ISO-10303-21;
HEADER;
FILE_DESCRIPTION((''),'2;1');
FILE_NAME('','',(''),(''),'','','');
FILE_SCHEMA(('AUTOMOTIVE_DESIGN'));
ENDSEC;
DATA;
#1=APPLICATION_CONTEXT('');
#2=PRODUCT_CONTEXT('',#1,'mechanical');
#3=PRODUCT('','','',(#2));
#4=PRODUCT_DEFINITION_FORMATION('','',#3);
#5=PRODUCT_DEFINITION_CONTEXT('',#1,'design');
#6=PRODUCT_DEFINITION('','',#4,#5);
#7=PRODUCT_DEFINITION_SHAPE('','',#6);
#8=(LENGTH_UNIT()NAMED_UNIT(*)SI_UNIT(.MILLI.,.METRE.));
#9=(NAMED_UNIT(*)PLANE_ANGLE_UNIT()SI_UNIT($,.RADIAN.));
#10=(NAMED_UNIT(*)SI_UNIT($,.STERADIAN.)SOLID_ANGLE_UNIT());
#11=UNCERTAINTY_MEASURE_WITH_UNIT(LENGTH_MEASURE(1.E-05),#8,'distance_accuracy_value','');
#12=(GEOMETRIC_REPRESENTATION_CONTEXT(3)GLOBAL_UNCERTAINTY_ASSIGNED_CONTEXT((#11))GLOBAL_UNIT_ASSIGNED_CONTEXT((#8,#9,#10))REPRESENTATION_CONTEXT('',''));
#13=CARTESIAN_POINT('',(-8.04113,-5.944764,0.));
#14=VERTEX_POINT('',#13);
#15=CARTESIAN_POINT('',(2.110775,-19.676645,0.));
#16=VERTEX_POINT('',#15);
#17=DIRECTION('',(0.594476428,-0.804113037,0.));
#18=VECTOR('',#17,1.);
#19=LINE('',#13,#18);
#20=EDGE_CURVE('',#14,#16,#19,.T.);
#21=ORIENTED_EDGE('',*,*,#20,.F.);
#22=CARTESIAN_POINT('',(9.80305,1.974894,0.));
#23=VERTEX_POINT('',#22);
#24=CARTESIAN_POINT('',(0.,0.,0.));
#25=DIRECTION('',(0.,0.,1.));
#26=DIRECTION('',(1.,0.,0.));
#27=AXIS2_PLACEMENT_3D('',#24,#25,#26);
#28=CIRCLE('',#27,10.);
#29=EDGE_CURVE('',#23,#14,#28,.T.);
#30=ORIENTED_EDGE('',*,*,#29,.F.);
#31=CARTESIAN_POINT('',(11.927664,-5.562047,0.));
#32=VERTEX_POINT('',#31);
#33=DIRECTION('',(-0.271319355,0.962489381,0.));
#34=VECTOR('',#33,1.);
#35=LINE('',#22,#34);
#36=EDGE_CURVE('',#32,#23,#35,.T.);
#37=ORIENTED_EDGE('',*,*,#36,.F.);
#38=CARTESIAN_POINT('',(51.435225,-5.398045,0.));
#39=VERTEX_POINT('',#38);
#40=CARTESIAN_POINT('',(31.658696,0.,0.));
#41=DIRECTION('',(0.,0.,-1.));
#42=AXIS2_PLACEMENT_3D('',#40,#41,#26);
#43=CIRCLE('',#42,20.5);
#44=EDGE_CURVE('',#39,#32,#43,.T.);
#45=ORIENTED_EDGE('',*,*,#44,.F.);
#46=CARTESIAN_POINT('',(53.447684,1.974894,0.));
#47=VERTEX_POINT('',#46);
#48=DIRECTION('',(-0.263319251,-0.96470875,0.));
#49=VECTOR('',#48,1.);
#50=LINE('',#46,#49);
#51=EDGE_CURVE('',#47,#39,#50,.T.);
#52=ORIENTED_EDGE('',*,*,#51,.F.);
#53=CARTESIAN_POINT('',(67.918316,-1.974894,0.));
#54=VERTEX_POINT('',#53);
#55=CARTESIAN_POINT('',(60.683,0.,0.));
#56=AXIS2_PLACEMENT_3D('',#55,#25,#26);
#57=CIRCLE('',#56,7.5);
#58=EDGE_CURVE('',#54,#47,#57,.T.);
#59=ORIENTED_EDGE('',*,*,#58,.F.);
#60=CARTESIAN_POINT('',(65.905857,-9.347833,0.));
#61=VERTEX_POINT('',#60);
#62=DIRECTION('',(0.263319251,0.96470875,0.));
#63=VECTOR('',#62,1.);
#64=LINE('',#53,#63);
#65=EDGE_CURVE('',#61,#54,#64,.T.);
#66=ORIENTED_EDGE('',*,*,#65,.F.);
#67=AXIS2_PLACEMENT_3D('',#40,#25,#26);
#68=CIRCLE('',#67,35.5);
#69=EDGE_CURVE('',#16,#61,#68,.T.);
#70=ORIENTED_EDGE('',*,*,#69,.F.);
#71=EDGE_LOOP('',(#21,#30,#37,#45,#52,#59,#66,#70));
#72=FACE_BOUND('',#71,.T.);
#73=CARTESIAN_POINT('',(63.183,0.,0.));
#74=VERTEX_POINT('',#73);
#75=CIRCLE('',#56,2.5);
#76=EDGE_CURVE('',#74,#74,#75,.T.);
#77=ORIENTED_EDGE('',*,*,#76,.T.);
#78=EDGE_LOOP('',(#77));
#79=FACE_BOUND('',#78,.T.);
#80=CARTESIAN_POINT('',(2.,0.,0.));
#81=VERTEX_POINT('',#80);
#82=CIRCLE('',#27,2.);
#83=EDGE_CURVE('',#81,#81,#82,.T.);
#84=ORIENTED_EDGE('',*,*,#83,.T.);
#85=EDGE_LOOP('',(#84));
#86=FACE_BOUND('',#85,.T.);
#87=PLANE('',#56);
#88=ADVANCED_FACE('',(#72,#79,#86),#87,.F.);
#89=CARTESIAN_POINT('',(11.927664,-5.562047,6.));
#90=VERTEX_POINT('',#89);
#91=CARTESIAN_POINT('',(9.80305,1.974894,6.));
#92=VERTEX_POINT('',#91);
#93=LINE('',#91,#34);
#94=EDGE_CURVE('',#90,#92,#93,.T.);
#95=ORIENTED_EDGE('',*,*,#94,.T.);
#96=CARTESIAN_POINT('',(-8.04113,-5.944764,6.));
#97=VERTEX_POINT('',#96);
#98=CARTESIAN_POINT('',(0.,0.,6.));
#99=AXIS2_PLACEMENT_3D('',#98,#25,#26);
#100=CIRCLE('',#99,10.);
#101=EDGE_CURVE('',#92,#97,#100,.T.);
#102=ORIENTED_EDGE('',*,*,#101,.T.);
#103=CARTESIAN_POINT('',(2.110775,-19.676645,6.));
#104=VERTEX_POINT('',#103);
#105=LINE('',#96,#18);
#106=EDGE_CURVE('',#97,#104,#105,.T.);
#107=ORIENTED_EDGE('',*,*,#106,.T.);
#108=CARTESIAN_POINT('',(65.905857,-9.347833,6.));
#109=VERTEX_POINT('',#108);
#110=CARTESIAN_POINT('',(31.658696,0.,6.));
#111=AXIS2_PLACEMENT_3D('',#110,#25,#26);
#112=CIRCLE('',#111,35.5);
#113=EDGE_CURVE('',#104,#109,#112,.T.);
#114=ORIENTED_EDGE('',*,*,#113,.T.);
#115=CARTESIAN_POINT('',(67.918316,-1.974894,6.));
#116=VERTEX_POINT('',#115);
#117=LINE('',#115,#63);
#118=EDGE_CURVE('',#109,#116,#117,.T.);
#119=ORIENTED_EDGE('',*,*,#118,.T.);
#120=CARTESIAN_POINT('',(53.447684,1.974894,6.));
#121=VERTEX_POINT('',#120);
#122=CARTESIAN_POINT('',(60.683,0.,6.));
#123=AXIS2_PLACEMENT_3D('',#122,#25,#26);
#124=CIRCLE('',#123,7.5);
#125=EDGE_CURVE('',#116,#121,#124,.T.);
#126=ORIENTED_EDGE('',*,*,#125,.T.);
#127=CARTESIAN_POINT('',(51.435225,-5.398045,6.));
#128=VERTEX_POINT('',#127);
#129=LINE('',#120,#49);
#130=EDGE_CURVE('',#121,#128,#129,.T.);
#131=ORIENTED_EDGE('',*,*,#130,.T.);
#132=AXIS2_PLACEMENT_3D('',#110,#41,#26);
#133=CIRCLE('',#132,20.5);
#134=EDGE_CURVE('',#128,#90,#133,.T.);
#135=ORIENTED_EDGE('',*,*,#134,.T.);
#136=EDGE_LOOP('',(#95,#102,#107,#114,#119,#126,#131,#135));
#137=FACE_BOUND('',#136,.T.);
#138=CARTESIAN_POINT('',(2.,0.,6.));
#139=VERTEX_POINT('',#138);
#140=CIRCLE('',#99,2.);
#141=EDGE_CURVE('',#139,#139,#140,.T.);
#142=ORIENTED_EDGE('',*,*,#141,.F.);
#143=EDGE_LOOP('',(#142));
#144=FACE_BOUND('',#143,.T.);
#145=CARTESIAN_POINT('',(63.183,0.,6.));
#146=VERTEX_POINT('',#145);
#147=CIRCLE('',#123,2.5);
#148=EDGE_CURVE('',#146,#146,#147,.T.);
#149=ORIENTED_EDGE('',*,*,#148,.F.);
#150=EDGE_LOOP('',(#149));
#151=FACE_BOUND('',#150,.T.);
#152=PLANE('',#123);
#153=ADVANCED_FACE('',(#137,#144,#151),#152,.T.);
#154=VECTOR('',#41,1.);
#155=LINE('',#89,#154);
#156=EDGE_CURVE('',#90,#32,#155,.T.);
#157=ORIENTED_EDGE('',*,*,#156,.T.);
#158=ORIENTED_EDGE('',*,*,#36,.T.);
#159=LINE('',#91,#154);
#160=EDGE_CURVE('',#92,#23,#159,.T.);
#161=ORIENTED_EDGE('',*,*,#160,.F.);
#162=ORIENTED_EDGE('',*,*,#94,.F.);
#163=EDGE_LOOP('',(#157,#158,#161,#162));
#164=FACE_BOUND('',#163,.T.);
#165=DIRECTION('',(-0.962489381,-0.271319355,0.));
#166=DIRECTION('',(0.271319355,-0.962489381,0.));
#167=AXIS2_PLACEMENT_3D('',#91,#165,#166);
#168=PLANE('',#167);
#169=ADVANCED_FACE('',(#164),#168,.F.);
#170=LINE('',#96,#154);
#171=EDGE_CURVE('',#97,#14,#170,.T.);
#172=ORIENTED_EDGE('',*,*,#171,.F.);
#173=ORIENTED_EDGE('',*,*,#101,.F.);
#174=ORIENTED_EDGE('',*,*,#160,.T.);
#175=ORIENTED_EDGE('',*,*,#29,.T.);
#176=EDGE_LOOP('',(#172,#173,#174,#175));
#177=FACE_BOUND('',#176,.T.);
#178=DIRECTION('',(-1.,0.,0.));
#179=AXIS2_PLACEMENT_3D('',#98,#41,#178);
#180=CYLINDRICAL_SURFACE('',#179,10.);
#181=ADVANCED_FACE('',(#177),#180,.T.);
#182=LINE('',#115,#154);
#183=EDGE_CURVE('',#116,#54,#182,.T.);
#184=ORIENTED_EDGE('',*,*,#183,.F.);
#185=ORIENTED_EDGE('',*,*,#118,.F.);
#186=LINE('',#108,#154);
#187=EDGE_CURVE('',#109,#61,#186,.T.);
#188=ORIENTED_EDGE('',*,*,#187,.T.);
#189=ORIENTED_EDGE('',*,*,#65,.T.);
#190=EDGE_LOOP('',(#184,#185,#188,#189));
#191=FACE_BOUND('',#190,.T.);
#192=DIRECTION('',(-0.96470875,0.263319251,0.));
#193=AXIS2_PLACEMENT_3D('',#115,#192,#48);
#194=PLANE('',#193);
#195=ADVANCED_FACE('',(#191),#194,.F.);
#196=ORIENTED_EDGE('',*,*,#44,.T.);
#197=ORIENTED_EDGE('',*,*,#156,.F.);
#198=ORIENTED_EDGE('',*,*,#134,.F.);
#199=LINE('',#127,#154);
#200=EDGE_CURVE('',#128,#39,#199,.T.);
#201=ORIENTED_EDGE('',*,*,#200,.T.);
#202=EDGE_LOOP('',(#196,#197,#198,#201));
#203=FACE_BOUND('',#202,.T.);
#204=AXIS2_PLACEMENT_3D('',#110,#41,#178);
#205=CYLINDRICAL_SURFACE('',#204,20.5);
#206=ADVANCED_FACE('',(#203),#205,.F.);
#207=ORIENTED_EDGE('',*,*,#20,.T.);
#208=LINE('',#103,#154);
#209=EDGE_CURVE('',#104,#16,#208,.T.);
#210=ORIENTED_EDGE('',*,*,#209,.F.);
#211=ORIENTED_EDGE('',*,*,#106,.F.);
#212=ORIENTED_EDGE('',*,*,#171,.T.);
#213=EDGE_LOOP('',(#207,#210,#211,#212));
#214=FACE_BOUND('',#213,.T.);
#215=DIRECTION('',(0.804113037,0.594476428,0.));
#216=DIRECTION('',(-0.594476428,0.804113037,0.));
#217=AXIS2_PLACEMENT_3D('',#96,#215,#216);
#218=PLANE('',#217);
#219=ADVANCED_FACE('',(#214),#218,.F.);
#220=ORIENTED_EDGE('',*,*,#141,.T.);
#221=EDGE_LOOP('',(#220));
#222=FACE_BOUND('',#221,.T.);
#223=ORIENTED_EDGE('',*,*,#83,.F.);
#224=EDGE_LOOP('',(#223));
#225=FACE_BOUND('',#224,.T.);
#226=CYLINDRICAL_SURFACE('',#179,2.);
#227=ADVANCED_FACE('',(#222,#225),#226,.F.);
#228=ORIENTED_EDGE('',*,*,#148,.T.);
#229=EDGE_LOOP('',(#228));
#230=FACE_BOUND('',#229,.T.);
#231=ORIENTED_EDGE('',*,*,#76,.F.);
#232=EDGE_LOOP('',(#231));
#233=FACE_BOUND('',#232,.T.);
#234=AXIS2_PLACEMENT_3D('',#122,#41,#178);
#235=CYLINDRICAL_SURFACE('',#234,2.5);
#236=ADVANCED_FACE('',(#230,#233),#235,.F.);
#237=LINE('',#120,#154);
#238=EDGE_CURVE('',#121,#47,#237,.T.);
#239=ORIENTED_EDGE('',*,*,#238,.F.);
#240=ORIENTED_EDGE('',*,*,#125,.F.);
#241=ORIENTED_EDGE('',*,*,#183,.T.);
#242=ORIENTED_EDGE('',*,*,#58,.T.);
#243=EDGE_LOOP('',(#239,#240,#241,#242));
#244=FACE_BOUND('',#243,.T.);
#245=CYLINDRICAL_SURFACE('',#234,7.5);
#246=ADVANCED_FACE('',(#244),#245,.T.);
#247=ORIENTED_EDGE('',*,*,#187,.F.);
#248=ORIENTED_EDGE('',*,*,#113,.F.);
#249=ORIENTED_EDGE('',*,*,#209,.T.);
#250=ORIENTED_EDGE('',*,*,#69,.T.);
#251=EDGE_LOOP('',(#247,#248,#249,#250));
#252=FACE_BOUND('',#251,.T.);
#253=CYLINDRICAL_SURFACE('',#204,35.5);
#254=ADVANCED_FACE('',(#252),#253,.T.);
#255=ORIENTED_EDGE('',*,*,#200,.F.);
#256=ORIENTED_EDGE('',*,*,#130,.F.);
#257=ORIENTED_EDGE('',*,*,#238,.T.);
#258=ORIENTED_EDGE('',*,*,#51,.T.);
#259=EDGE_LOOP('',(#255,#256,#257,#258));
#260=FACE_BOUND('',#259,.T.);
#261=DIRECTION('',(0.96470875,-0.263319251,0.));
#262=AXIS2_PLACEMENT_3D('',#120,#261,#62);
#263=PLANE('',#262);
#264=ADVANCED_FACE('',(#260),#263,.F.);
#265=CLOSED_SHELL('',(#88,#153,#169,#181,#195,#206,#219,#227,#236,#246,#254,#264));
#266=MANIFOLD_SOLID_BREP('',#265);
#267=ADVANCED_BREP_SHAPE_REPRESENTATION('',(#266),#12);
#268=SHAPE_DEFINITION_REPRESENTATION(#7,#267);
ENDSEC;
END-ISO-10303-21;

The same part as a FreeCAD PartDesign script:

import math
import FreeCAD as App
import Part
import Sketcher

V = App.Vector
Q = App.Units.Quantity

doc = App.newDocument("Part")
body = doc.addObject("PartDesign::Body", "Body")

sketch1 = doc.addObject("Sketcher::SketchObject", "Sketch")
body.addObject(sketch1)
sketch1.AttachmentSupport = (doc.XY_Plane, [""])
sketch1.MapMode = "FlatFace"
sketch1.addGeometry([
    Part.LineSegment(V(53.4, 2, 0), V(51.4, -5.4, 0)),
    Part.ArcOfCircle(Part.Circle(V(31.7, 0, 0), V(0, 0, 1), 20.5), math.radians(-164), math.radians(-15)),
    Part.LineSegment(V(11.9, -5.6, 0), V(9.8, 2, 0)),
    Part.ArcOfCircle(Part.Circle(V(0, 0, 0), V(0, 0, 1), 10), math.radians(11), math.radians(216)),
    Part.LineSegment(V(-8, -5.9, 0), V(2.1, -19.7, 0)),
    Part.ArcOfCircle(Part.Circle(V(31.7, 0, 0), V(0, 0, 1), 35.5), math.radians(-146), math.radians(-15)),
    Part.LineSegment(V(65.9, -9.3, 0), V(67.9, -2, 0)),
    Part.ArcOfCircle(Part.Circle(V(60.7, 0, 0), V(0, 0, 1), 7.5), math.radians(-15), math.radians(165)),
    Part.Circle(V(0, 0, 0), V(0, 0, 1), 2),
    Part.Circle(V(60.7, 0, 0), V(0, 0, 1), 2.5),
], False)
sketch1.addConstraint([
    Sketcher.Constraint("Tangent", 0, 2, 1, 2),
    Sketcher.Constraint("Tangent", 1, 1, 2, 1),
    Sketcher.Constraint("Coincident", 2, 2, 3, 1),
    Sketcher.Constraint("Tangent", 3, 2, 4, 1),
    Sketcher.Constraint("Coincident", 4, 2, 5, 1),
    Sketcher.Constraint("Tangent", 5, 2, 6, 1),
    Sketcher.Constraint("Tangent", 6, 2, 7, 1),
    Sketcher.Constraint("Tangent", 7, 2, 0, 1),
    Sketcher.Constraint("Coincident", 3, 3, -1, 1),
    Sketcher.Constraint("Coincident", 8, 3, -1, 1),
    Sketcher.Constraint("Coincident", 5, 3, 1, 3),
    Sketcher.Constraint("Coincident", 9, 3, 7, 3),
    Sketcher.Constraint("PointOnObject", 1, 3, -1),
    Sketcher.Constraint("PointOnObject", 7, 3, -1),
    Sketcher.Constraint("Parallel", 0, 6),
    Sketcher.Constraint("Horizontal", 2, 2, 7, 2),
    Sketcher.Constraint("Diameter", 8, Q("4 mm")),
    Sketcher.Constraint("Diameter", 9, Q("5 mm")),
    Sketcher.Constraint("Radius", 3, Q("10 mm")),
    Sketcher.Constraint("Radius", 1, Q("20.5 mm")),
    Sketcher.Constraint("Radius", 5, Q("35.5 mm")),
    Sketcher.Constraint("DistanceX", -1, 1, 7, 3, Q("60.683 mm")),
    Sketcher.Constraint("DistanceY", 4, 2, 1, 1, Q("14.114598 mm")),
    Sketcher.Constraint("DistanceX", -1, 1, 2, 2, Q("9.80305 mm")),
])
pad1 = doc.addObject("PartDesign::Pad", "Pad")
body.addObject(pad1)
pad1.Profile = sketch1
pad1.Length = 6

doc.recompute()
